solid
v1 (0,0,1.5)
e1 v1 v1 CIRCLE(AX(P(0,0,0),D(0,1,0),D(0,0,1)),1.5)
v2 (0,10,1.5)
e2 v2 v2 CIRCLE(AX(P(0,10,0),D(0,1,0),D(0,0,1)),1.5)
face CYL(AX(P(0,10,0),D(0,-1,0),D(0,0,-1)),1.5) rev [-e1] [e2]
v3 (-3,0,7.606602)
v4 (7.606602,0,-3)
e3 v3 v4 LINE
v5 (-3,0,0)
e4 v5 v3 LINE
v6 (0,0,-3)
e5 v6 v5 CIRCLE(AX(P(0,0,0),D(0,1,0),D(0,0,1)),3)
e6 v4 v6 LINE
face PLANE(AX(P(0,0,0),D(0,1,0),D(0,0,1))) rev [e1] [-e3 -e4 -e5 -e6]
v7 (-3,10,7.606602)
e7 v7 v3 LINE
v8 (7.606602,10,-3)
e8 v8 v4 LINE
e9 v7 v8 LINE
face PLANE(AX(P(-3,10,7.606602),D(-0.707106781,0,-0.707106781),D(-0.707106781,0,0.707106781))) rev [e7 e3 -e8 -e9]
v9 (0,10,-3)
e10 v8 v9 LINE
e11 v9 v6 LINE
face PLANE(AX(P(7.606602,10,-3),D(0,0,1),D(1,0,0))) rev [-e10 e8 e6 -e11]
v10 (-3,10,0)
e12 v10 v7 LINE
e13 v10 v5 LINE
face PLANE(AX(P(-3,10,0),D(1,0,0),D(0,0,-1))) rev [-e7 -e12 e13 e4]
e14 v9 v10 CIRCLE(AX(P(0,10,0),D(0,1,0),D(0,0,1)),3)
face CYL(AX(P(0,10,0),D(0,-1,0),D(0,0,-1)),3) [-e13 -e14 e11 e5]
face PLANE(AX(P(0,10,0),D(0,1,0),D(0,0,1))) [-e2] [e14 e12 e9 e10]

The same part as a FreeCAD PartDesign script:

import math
import FreeCAD as App
import Part
import Sketcher

V = App.Vector

doc = App.newDocument("Part")
body = doc.addObject("PartDesign::Body", "Body")

sketch1 = doc.addObject("Sketcher::SketchObject", "Sketch")
body.addObject(sketch1)
sketch1.AttachmentSupport = (doc.XZ_Plane, [""])
sketch1.MapMode = "FlatFace"
sketch1.addGeometry(Part.LineSegment(V(7.6, -3, 0), V(0, -3, 0)), False)
sketch1.addGeometry(Part.ArcOfCircle(Part.Circle(V(0, 0, 0), V(0, 0, 1), 3), math.radians(180), math.radians(270)), False)
sketch1.addGeometry(Part.LineSegment(V(-3, 0, 0), V(-3, 7.6, 0)), False)
sketch1.addGeometry(Part.LineSegment(V(-3, 7.6, 0), V(7.6, -3, 0)), False)
sketch1.addGeometry(Part.Circle(V(0, 0, 0), V(0, 0, 1), 1.5), False)
sketch1.addConstraint(Sketcher.Constraint("Tangent", 0, 2, 1, 2))
sketch1.addConstraint(Sketcher.Constraint("Tangent", 1, 1, 2, 1))
sketch1.addConstraint(Sketcher.Constraint("Coincident", 2, 2, 3, 1))
sketch1.addConstraint(Sketcher.Constraint("Coincident", 3, 2, 0, 1))
sketch1.addConstraint(Sketcher.Constraint("Horizontal", 0))
sketch1.addConstraint(Sketcher.Constraint("Vertical", 2))
sketch1.addConstraint(Sketcher.Constraint("Coincident", 1, 3, -1, 1))
sketch1.addConstraint(Sketcher.Constraint("Coincident", 4, 3, -1, 1))
sketch1.addConstraint(Sketcher.Constraint("Equal", 0, 2))
sketch1.addConstraint(Sketcher.Constraint("Diameter", 4, 3.0))
sketch1.addConstraint(Sketcher.Constraint("Radius", 1, 3.0))
sketch1.addConstraint(Sketcher.Constraint("Distance", 3, 15.0))
pad1 = doc.addObject("PartDesign::Pad", "Pad")
body.addObject(pad1)
pad1.Profile = sketch1
pad1.Length = 10
pad1.Reversed = True

doc.recompute()
